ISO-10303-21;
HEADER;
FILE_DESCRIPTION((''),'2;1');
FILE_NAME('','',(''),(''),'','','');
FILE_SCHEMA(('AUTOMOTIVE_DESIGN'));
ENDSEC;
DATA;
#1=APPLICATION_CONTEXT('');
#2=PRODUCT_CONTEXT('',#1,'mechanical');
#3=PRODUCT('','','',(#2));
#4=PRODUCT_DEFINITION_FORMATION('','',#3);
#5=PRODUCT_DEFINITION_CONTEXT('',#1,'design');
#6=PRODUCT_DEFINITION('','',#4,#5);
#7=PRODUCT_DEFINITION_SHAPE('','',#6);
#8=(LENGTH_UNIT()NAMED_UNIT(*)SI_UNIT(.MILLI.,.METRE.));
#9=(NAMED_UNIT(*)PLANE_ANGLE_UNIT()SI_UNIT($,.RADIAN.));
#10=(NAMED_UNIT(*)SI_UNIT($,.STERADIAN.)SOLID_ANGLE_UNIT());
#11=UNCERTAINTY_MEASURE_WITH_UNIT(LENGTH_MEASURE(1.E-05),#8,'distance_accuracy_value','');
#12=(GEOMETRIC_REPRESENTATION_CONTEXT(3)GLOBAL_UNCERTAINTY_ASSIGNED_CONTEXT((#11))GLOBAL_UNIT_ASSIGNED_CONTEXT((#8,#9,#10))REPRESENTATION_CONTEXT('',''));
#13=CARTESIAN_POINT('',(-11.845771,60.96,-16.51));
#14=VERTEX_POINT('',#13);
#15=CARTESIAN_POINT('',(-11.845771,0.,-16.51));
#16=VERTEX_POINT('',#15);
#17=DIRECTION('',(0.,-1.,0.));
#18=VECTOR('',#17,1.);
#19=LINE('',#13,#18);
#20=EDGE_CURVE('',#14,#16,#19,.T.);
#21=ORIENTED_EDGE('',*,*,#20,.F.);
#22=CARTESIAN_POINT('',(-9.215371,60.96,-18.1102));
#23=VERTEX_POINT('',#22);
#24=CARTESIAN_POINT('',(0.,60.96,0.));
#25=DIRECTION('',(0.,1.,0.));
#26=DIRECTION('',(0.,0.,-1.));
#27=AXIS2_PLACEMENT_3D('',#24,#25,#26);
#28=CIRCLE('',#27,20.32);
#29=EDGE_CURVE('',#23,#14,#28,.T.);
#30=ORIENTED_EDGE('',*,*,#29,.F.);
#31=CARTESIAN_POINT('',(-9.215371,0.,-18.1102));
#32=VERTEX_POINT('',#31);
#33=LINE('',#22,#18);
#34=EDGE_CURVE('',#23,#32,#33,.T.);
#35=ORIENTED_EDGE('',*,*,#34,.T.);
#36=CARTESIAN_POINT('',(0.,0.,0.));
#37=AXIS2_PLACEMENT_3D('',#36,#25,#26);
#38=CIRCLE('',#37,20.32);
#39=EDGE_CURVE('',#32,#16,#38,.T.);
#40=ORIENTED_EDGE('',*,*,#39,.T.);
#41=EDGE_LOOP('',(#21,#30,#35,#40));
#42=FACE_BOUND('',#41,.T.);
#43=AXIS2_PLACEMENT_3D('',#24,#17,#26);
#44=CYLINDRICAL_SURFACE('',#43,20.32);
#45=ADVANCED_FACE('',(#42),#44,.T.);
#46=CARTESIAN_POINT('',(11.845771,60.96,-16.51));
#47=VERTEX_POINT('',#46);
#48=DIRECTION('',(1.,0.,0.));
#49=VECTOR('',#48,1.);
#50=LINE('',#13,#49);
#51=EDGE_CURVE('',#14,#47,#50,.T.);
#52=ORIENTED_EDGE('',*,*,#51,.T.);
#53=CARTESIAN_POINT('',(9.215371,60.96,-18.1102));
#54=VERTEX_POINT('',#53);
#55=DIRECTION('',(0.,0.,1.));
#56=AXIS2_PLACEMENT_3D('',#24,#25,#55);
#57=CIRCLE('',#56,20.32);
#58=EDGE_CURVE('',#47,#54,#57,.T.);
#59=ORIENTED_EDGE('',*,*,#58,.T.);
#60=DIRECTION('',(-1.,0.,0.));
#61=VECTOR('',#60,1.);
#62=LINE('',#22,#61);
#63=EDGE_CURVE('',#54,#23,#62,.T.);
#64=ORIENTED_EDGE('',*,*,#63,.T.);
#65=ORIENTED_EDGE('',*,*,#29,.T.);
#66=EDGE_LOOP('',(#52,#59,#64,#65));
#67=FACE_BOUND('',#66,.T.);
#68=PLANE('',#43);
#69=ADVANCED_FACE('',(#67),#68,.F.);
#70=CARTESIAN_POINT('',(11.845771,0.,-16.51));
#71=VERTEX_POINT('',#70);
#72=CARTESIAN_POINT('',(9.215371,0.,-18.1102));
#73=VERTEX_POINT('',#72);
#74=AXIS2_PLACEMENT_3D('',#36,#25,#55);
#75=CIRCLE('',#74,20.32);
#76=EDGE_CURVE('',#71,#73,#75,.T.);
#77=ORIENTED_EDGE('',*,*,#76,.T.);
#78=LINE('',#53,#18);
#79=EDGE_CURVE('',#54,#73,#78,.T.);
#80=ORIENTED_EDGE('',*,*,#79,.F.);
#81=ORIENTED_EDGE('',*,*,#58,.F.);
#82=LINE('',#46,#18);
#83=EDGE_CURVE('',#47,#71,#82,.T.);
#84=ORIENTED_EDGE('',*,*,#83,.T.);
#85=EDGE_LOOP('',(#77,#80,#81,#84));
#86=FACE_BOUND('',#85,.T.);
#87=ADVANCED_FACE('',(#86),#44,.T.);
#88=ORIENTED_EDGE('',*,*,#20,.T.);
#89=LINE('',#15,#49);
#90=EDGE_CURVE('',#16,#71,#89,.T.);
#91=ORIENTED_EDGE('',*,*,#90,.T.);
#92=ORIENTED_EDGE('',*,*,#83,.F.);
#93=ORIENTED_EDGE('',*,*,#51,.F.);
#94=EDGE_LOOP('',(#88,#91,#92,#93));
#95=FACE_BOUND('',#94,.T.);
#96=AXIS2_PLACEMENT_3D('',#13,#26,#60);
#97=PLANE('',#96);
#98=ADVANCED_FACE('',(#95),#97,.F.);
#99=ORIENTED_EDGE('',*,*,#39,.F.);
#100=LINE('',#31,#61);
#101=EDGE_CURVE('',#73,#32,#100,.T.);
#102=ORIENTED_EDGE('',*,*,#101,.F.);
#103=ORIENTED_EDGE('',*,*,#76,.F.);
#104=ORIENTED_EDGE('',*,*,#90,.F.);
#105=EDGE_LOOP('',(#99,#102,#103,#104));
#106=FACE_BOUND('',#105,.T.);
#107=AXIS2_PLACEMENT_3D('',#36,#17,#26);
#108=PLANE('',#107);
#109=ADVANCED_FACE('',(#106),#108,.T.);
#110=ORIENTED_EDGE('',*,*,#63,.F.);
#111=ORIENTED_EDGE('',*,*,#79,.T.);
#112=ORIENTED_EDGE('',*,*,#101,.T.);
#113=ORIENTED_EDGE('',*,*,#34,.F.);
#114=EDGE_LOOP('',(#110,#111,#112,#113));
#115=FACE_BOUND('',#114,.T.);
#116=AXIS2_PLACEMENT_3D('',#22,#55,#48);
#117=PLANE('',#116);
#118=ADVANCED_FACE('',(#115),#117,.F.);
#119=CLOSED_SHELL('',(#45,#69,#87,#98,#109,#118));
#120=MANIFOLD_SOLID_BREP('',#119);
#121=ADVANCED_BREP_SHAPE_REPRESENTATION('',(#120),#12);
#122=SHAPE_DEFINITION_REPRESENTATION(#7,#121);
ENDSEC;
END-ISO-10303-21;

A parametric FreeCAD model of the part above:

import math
import FreeCAD as App
import Part
import Sketcher

V = App.Vector
Q = App.Units.Quantity

doc = App.newDocument("Part")
body = doc.addObject("PartDesign::Body", "Body")

# Sketch on XZ plane
sketch1 = body.newObject("Sketcher::SketchObject", "Sketch")
sketch1.AttachmentSupport = (doc.getObject("XZ_Plane"), [""])
sketch1.MapMode = "FlatFace"
sketch1.addGeometry([
    Part.LineSegment(V(-11.8, -16.5, 0), V(11.8, -16.5, 0)),
    Part.ArcOfCircle(Part.Circle(V(0, 0, 0), V(0, 0, 1), 20.3), math.radians(-63.03), math.radians(-54.34)),
    Part.LineSegment(V(9.2, -18.1, 0), V(-9.2, -18.1, 0)),
    Part.ArcOfCircle(Part.Circle(V(0, 0, 0), V(0, 0, 1), 20.3), math.radians(-125.66), math.radians(-116.97)),
], False)
sketch1.addConstraint([
    Sketcher.Constraint("Coincident", 0, 2, 1, 2),
    Sketcher.Constraint("Coincident", 1, 1, 2, 1),
    Sketcher.Constraint("Coincident", 2, 2, 3, 2),
    Sketcher.Constraint("Coincident", 3, 1, 0, 1),
    Sketcher.Constraint("Horizontal", 0),
    Sketcher.Constraint("Horizontal", 2),
    Sketcher.Constraint("Coincident", 1, 3, -1, 1),
    Sketcher.Constraint("Coincident", 3, 3, -1, 1),
    Sketcher.Constraint("Equal", 1, 3),
    Sketcher.Constraint("Radius", 1, Q("0.8 in")),
    Sketcher.Constraint("DistanceY", 0, 2, -1, 1, Q("0.65 in")),
    Sketcher.Constraint("DistanceY", 1, 1, -1, 1, Q("0.713 in")),
])
pad1 = body.newObject("PartDesign::Pad", "Pad")
pad1.Profile = sketch1
pad1.Length = Q("2.4 in")
pad1.Reversed = True

doc.recompute()
